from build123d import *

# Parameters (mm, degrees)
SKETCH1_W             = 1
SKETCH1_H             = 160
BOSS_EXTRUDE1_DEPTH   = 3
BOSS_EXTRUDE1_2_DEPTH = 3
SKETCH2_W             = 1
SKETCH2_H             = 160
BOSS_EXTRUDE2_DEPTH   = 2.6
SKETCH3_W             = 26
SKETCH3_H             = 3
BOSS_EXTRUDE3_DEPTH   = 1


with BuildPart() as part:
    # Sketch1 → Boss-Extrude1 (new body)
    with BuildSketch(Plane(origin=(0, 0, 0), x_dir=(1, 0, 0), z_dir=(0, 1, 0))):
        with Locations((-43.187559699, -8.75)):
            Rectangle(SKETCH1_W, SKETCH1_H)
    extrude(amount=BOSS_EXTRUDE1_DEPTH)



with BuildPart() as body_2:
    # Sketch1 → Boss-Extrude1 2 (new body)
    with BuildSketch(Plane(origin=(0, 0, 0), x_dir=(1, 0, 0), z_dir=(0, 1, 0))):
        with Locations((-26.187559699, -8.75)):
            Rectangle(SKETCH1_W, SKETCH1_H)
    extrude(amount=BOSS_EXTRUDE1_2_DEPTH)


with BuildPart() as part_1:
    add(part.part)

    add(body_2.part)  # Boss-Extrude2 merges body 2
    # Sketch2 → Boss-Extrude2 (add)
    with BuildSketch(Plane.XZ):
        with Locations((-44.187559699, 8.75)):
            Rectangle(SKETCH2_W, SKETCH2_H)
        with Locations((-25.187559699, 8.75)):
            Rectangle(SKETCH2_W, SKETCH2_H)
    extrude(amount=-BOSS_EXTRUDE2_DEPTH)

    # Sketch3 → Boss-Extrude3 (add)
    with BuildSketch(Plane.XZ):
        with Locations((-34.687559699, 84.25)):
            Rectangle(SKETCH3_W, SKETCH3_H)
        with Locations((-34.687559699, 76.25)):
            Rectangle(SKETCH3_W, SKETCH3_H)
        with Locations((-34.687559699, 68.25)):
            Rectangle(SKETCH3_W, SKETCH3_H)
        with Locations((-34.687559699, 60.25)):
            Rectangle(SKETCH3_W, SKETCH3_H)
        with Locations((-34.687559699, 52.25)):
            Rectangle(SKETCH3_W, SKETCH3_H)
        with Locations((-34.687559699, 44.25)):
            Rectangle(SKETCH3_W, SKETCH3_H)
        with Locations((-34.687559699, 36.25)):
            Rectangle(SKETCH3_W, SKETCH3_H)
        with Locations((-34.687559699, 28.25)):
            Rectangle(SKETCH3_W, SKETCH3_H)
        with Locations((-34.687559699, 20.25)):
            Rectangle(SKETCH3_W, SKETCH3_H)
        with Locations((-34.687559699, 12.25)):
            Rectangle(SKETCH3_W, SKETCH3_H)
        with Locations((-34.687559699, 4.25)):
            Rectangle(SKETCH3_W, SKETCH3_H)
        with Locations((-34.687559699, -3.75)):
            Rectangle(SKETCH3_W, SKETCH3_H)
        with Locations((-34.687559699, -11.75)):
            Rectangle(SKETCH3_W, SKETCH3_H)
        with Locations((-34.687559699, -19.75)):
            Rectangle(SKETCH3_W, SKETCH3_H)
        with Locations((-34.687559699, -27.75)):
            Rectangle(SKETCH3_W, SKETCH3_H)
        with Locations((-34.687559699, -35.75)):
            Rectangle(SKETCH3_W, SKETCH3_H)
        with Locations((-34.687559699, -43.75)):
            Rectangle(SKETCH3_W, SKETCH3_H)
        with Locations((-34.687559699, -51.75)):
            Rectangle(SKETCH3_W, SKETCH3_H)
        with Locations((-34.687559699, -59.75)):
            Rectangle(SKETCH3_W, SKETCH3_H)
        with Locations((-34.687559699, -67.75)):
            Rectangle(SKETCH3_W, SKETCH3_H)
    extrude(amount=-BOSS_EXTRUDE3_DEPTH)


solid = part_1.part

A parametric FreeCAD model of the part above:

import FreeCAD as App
import Part
import Sketcher

V = App.Vector
Q = App.Units.Quantity


def add_polygon(sketch, points):
    """Adds a closed chain of lines whose ends are joined by coincident constraints."""
    first, n = sketch.GeometryCount, len(points)
    for a, b in zip(points, points[1:] + points[:1]):
        sketch.addGeometry(Part.LineSegment(App.Vector(*a, 0), App.Vector(*b, 0)), False)
    for i in range(n):
        sketch.addConstraint(Sketcher.Constraint("Coincident", first + i, 2, first + (i + 1) % n, 1))

doc = App.newDocument("Part")
params = doc.addObject("Spreadsheet::Sheet", "Params")
for row, (alias, value) in enumerate([
    ("sketch1_width", "1 mm"),
    ("sketch1_height", "160 mm"),
    ("pad1_length", "3 mm"),
    ("sketch2_width", "1 mm"),
    ("sketch2_height", "160 mm"),
    ("pad2_length", "3 mm"),
    ("sketch3_width", "1 mm"),
    ("sketch3_height", "160 mm"),
    ("pad3_length", "2.6 mm"),
    ("sketch4_width", "26 mm"),
    ("sketch4_height", "3 mm"),
    ("pad4_length", "1 mm"),
], start=1):
    params.set(f"A{row}", alias)
    params.set(f"B{row}", "=" + value)
    params.setAlias(f"B{row}", alias)

body = doc.addObject("PartDesign::Body", "Body")

# Sketch on XZ plane
sketch1 = body.newObject("Sketcher::SketchObject", "Sketch")
sketch1.AttachmentSupport = (doc.getObject("XZ_Plane"), [""])
sketch1.MapMode = "FlatFace"
add_polygon(sketch1, [(-43.68756, -71.25), (-43.68756, 88.75), (-42.68756, 88.75), (-42.68756, -71.25)])  # lines 0-3
sketch1.addConstraint(Sketcher.Constraint("Vertical", 0))
sketch1.addConstraint(Sketcher.Constraint("Horizontal", 1))
sketch1.addConstraint(Sketcher.Constraint("Vertical", 2))
sketch1.addConstraint(Sketcher.Constraint("Horizontal", 3))
sketch1.addConstraint(Sketcher.Constraint("DistanceX", 1, 1, 1, 2, Q("1 mm")))
sketch1.addConstraint(Sketcher.Constraint("DistanceY", 0, 1, 0, 2, Q("160 mm")))
sketch1.addConstraint(Sketcher.Constraint("DistanceY", -1, 1, 0, 2, Q("88.75 mm")))
sketch1.addConstraint(Sketcher.Constraint("DistanceX", 0, 2, -1, 1, Q("43.68756 mm")))
sketch1.setExpression("Constraints[8]", "Params.sketch1_width")
sketch1.setExpression("Constraints[9]", "Params.sketch1_height")
pad1 = body.newObject("PartDesign::Pad", "Pad")
pad1.Profile = sketch1
pad1.setExpression("Length", "Params.pad1_length")
pad1.Reversed = True
body2 = doc.addObject("PartDesign::Body", "Body001")

# Sketch on XZ plane
sketch2 = body2.newObject("Sketcher::SketchObject", "Sketch001")
sketch2.AttachmentSupport = (doc.getObject("XZ_Plane001"), [""])
sketch2.MapMode = "FlatFace"
add_polygon(sketch2, [(-26.68756, -71.25), (-26.68756, 88.75), (-25.68756, 88.75), (-25.68756, -71.25)])  # lines 0-3
sketch2.addConstraint(Sketcher.Constraint("Vertical", 0))
sketch2.addConstraint(Sketcher.Constraint("Horizontal", 1))
sketch2.addConstraint(Sketcher.Constraint("Vertical", 2))
sketch2.addConstraint(Sketcher.Constraint("Horizontal", 3))
sketch2.addConstraint(Sketcher.Constraint("DistanceX", 1, 1, 1, 2, Q("1 mm")))
sketch2.addConstraint(Sketcher.Constraint("DistanceY", 0, 1, 0, 2, Q("160 mm")))
sketch2.addConstraint(Sketcher.Constraint("DistanceY", -1, 1, 0, 2, Q("88.75 mm")))
sketch2.addConstraint(Sketcher.Constraint("DistanceX", 0, 2, -1, 1, Q("26.68756 mm")))
sketch2.setExpression("Constraints[8]", "Params.sketch2_width")
sketch2.setExpression("Constraints[9]", "Params.sketch2_height")
pad2 = body2.newObject("PartDesign::Pad", "Pad001")
pad2.Profile = sketch2
pad2.setExpression("Length", "Params.pad2_length")
pad2.Reversed = True
body.AllowCompound = True
doc.recompute()

boolean = body.newObject("PartDesign::Boolean", "Boolean")
boolean.Type = "Fuse"
boolean.addObjects([body2])

# Sketch on XZ plane
sketch3 = body.newObject("Sketcher::SketchObject", "Sketch002")
sketch3.AttachmentSupport = (doc.getObject("XZ_Plane"), [""])
sketch3.MapMode = "FlatFace"
add_polygon(sketch3, [(-44.68756, 88.75), (-44.68756, -71.25), (-43.68756, -71.25), (-43.68756, 88.75)])  # lines 0-3
add_polygon(sketch3, [(-25.68756, 88.75), (-25.68756, -71.25), (-24.68756, -71.25), (-24.68756, 88.75)])  # lines 4-7
sketch3.addConstraint(Sketcher.Constraint("Vertical", 0))
sketch3.addConstraint(Sketcher.Constraint("Horizontal", 1))
sketch3.addConstraint(Sketcher.Constraint("Vertical", 2))
sketch3.addConstraint(Sketcher.Constraint("Horizontal", 3))
sketch3.addConstraint(Sketcher.Constraint("Vertical", 4))
sketch3.addConstraint(Sketcher.Constraint("Horizontal", 5))
sketch3.addConstraint(Sketcher.Constraint("Vertical", 6))
sketch3.addConstraint(Sketcher.Constraint("Horizontal", 7))
sketch3.addConstraint(Sketcher.Constraint("Horizontal", 1, 2, 4, 2))
sketch3.addConstraint(Sketcher.Constraint("Horizontal", 3, 2, 6, 2))
sketch3.addConstraint(Sketcher.Constraint("Equal", 3, 5))
sketch3.addConstraint(Sketcher.Constraint("DistanceX", 1, 1, 1, 2, Q("1 mm")))
sketch3.addConstraint(Sketcher.Constraint("DistanceY", 0, 2, 0, 1, Q("160 mm")))
sketch3.addConstraint(Sketcher.Constraint("DistanceX", 1, 2, 4, 2, Q("18 mm")))
sketch3.addConstraint(Sketcher.Constraint("DistanceY", 0, 2, -1, 1, Q("71.25 mm")))
sketch3.addConstraint(Sketcher.Constraint("DistanceX", 0, 2, -1, 1, Q("44.68756 mm")))
sketch3.setExpression("Constraints[19]", "Params.sketch3_width")
sketch3.setExpression("Constraints[20]", "Params.sketch3_height")
pad3 = body.newObject("PartDesign::Pad", "Pad002")
pad3.Profile = sketch3
pad3.setExpression("Length", "Params.pad3_length")
pad3.Reversed = True

# Sketch on XZ plane
sketch4 = body.newObject("Sketcher::SketchObject", "Sketch003")
sketch4.AttachmentSupport = (doc.getObject("XZ_Plane"), [""])
sketch4.MapMode = "FlatFace"
add_polygon(sketch4, [(-47.68756, 85.75), (-47.68756, 82.75), (-21.68756, 82.75), (-21.68756, 85.75)])  # lines 0-3
add_polygon(sketch4, [(-47.68756, 77.75), (-47.68756, 74.75), (-21.68756, 74.75), (-21.68756, 77.75)])  # lines 4-7
add_polygon(sketch4, [(-47.68756, 69.75), (-47.68756, 66.75), (-21.68756, 66.75), (-21.68756, 69.75)])  # lines 8-11
add_polygon(sketch4, [(-47.68756, 61.75), (-47.68756, 58.75), (-21.68756, 58.75), (-21.68756, 61.75)])  # lines 12-15
add_polygon(sketch4, [(-47.68756, 53.75), (-47.68756, 50.75), (-21.68756, 50.75), (-21.68756, 53.75)])  # lines 16-19
add_polygon(sketch4, [(-47.68756, 45.75), (-47.68756, 42.75), (-21.68756, 42.75), (-21.68756, 45.75)])  # lines 20-23
add_polygon(sketch4, [(-47.68756, 37.75), (-47.68756, 34.75), (-21.68756, 34.75), (-21.68756, 37.75)])  # lines 24-27
add_polygon(sketch4, [(-47.68756, 29.75), (-47.68756, 26.75), (-21.68756, 26.75), (-21.68756, 29.75)])  # lines 28-31
add_polygon(sketch4, [(-47.68756, 21.75), (-47.68756, 18.75), (-21.68756, 18.75), (-21.68756, 21.75)])  # lines 32-35
add_polygon(sketch4, [(-47.68756, 13.75), (-47.68756, 10.75), (-21.68756, 10.75), (-21.68756, 13.75)])  # lines 36-39
add_polygon(sketch4, [(-47.68756, 5.75), (-47.68756, 2.75), (-21.68756, 2.75), (-21.68756, 5.75)])  # lines 40-43
add_polygon(sketch4, [(-47.68756, -2.25), (-47.68756, -5.25), (-21.68756, -5.25), (-21.68756, -2.25)])  # lines 44-47
add_polygon(sketch4, [(-47.68756, -10.25), (-47.68756, -13.25), (-21.68756, -13.25), (-21.68756, -10.25)])  # lines 48-51
add_polygon(sketch4, [(-47.68756, -18.25), (-47.68756, -21.25), (-21.68756, -21.25), (-21.68756, -18.25)])  # lines 52-55
add_polygon(sketch4, [(-47.68756, -26.25), (-47.68756, -29.25), (-21.68756, -29.25), (-21.68756, -26.25)])  # lines 56-59
add_polygon(sketch4, [(-47.68756, -34.25), (-47.68756, -37.25), (-21.68756, -37.25), (-21.68756, -34.25)])  # lines 60-63
add_polygon(sketch4, [(-47.68756, -42.25), (-47.68756, -45.25), (-21.68756, -45.25), (-21.68756, -42.25)])  # lines 64-67
add_polygon(sketch4, [(-47.68756, -50.25), (-47.68756, -53.25), (-21.68756, -53.25), (-21.68756, -50.25)])  # lines 68-71
add_polygon(sketch4, [(-47.68756, -58.25), (-47.68756, -61.25), (-21.68756, -61.25), (-21.68756, -58.25)])  # lines 72-75
add_polygon(sketch4, [(-47.68756, -66.25), (-47.68756, -69.25), (-21.68756, -69.25), (-21.68756, -66.25)])  # lines 76-79
sketch4.addConstraint(Sketcher.Constraint("Vertical", 0))
sketch4.addConstraint(Sketcher.Constraint("Horizontal", 1))
sketch4.addConstraint(Sketcher.Constraint("Vertical", 2))
sketch4.addConstraint(Sketcher.Constraint("Horizontal", 3))
sketch4.addConstraint(Sketcher.Constraint("Vertical", 4))
sketch4.addConstraint(Sketcher.Constraint("Horizontal", 5))
sketch4.addConstraint(Sketcher.Constraint("Vertical", 6))
sketch4.addConstraint(Sketcher.Constraint("Horizontal", 7))
sketch4.addConstraint(Sketcher.Constraint("Vertical", 8))
sketch4.addConstraint(Sketcher.Constraint("Horizontal", 9))
sketch4.addConstraint(Sketcher.Constraint("Vertical", 10))
sketch4.addConstraint(Sketcher.Constraint("Horizontal", 11))
sketch4.addConstraint(Sketcher.Constraint("Vertical", 12))
sketch4.addConstraint(Sketcher.Constraint("Horizontal", 13))
sketch4.addConstraint(Sketcher.Constraint("Vertical", 14))
sketch4.addConstraint(Sketcher.Constraint("Horizontal", 15))
sketch4.addConstraint(Sketcher.Constraint("Vertical", 16))
sketch4.addConstraint(Sketcher.Constraint("Horizontal", 17))
sketch4.addConstraint(Sketcher.Constraint("Vertical", 18))
sketch4.addConstraint(Sketcher.Constraint("Horizontal", 19))
sketch4.addConstraint(Sketcher.Constraint("Vertical", 20))
sketch4.addConstraint(Sketcher.Constraint("Horizontal", 21))
sketch4.addConstraint(Sketcher.Constraint("Vertical", 22))
sketch4.addConstraint(Sketcher.Constraint("Horizontal", 23))
sketch4.addConstraint(Sketcher.Constraint("Vertical", 24))
sketch4.addConstraint(Sketcher.Constraint("Horizontal", 25))
sketch4.addConstraint(Sketcher.Constraint("Vertical", 26))
sketch4.addConstraint(Sketcher.Constraint("Horizontal", 27))
sketch4.addConstraint(Sketcher.Constraint("Vertical", 28))
sketch4.addConstraint(Sketcher.Constraint("Horizontal", 29))
sketch4.addConstraint(Sketcher.Constraint("Vertical", 30))
sketch4.addConstraint(Sketcher.Constraint("Horizontal", 31))
sketch4.addConstraint(Sketcher.Constraint("Vertical", 32))
sketch4.addConstraint(Sketcher.Constraint("Horizontal", 33))
sketch4.addConstraint(Sketcher.Constraint("Vertical", 34))
sketch4.addConstraint(Sketcher.Constraint("Horizontal", 35))
sketch4.addConstraint(Sketcher.Constraint("Vertical", 36))
sketch4.addConstraint(Sketcher.Constraint("Horizontal", 37))
sketch4.addConstraint(Sketcher.Constraint("Vertical", 38))
sketch4.addConstraint(Sketcher.Constraint("Horizontal", 39))
sketch4.addConstraint(Sketcher.Constraint("Vertical", 40))
sketch4.addConstraint(Sketcher.Constraint("Horizontal", 41))
sketch4.addConstraint(Sketcher.Constraint("Vertical", 42))
sketch4.addConstraint(Sketcher.Constraint("Horizontal", 43))
sketch4.addConstraint(Sketcher.Constraint("Vertical", 44))
sketch4.addConstraint(Sketcher.Constraint("Horizontal", 45))
sketch4.addConstraint(Sketcher.Constraint("Vertical", 46))
sketch4.addConstraint(Sketcher.Constraint("Horizontal", 47))
sketch4.addConstraint(Sketcher.Constraint("Vertical", 48))
sketch4.addConstraint(Sketcher.Constraint("Horizontal", 49))
sketch4.addConstraint(Sketcher.Constraint("Vertical", 50))
sketch4.addConstraint(Sketcher.Constraint("Horizontal", 51))
sketch4.addConstraint(Sketcher.Constraint("Vertical", 52))
sketch4.addConstraint(Sketcher.Constraint("Horizontal", 53))
sketch4.addConstraint(Sketcher.Constraint("Vertical", 54))
sketch4.addConstraint(Sketcher.Constraint("Horizontal", 55))
sketch4.addConstraint(Sketcher.Constraint("Vertical", 56))
sketch4.addConstraint(Sketcher.Constraint("Horizontal", 57))
sketch4.addConstraint(Sketcher.Constraint("Vertical", 58))
sketch4.addConstraint(Sketcher.Constraint("Horizontal", 59))
sketch4.addConstraint(Sketcher.Constraint("Vertical", 60))
sketch4.addConstraint(Sketcher.Constraint("Horizontal", 61))
sketch4.addConstraint(Sketcher.Constraint("Vertical", 62))
sketch4.addConstraint(Sketcher.Constraint("Horizontal", 63))
sketch4.addConstraint(Sketcher.Constraint("Vertical", 64))
sketch4.addConstraint(Sketcher.Constraint("Horizontal", 65))
sketch4.addConstraint(Sketcher.Constraint("Vertical", 66))
sketch4.addConstraint(Sketcher.Constraint("Horizontal", 67))
sketch4.addConstraint(Sketcher.Constraint("Vertical", 68))
sketch4.addConstraint(Sketcher.Constraint("Horizontal", 69))
sketch4.addConstraint(Sketcher.Constraint("Vertical", 70))
sketch4.addConstraint(Sketcher.Constraint("Horizontal", 71))
sketch4.addConstraint(Sketcher.Constraint("Vertical", 72))
sketch4.addConstraint(Sketcher.Constraint("Horizontal", 73))
sketch4.addConstraint(Sketcher.Constraint("Vertical", 74))
sketch4.addConstraint(Sketcher.Constraint("Horizontal", 75))
sketch4.addConstraint(Sketcher.Constraint("Vertical", 76))
sketch4.addConstraint(Sketcher.Constraint("Horizontal", 77))
sketch4.addConstraint(Sketcher.Constraint("Vertical", 78))
sketch4.addConstraint(Sketcher.Constraint("Horizontal", 79))
sketch4.addConstraint(Sketcher.Constraint("Vertical", 3, 2, 4, 2))
sketch4.addConstraint(Sketcher.Constraint("Vertical", 2, 2, 5, 2))
sketch4.addConstraint(Sketcher.Constraint("Vertical", 7, 2, 8, 2))
sketch4.addConstraint(Sketcher.Constraint("Vertical", 6, 2, 9, 2))
sketch4.addConstraint(Sketcher.Constraint("Vertical", 11, 2, 12, 2))
sketch4.addConstraint(Sketcher.Constraint("Vertical", 10, 2, 13, 2))
sketch4.addConstraint(Sketcher.Constraint("Vertical", 15, 2, 16, 2))
sketch4.addConstraint(Sketcher.Constraint("Vertical", 14, 2, 17, 2))
sketch4.addConstraint(Sketcher.Constraint("Vertical", 19, 2, 20, 2))
sketch4.addConstraint(Sketcher.Constraint("Vertical", 18, 2, 21, 2))
sketch4.addConstraint(Sketcher.Constraint("Vertical", 23, 2, 24, 2))
sketch4.addConstraint(Sketcher.Constraint("Vertical", 22, 2, 25, 2))
sketch4.addConstraint(Sketcher.Constraint("Vertical", 27, 2, 28, 2))
sketch4.addConstraint(Sketcher.Constraint("Vertical", 26, 2, 29, 2))
sketch4.addConstraint(Sketcher.Constraint("Vertical", 31, 2, 32, 2))
sketch4.addConstraint(Sketcher.Constraint("Vertical", 30, 2, 33, 2))
sketch4.addConstraint(Sketcher.Constraint("Vertical", 35, 2, 36, 2))
sketch4.addConstraint(Sketcher.Constraint("Vertical", 34, 2, 37, 2))
sketch4.addConstraint(Sketcher.Constraint("Vertical", 39, 2, 40, 2))
sketch4.addConstraint(Sketcher.Constraint("Vertical", 38, 2, 41, 2))
sketch4.addConstraint(Sketcher.Constraint("Vertical", 43, 2, 44, 2))
sketch4.addConstraint(Sketcher.Constraint("Vertical", 42, 2, 45, 2))
sketch4.addConstraint(Sketcher.Constraint("Vertical", 47, 2, 48, 2))
sketch4.addConstraint(Sketcher.Constraint("Vertical", 46, 2, 49, 2))
sketch4.addConstraint(Sketcher.Constraint("Vertical", 51, 2, 52, 2))
sketch4.addConstraint(Sketcher.Constraint("Vertical", 50, 2, 53, 2))
sketch4.addConstraint(Sketcher.Constraint("Vertical", 55, 2, 56, 2))
sketch4.addConstraint(Sketcher.Constraint("Vertical", 54, 2, 57, 2))
sketch4.addConstraint(Sketcher.Constraint("Vertical", 59, 2, 60, 2))
sketch4.addConstraint(Sketcher.Constraint("Vertical", 58, 2, 61, 2))
sketch4.addConstraint(Sketcher.Constraint("Vertical", 63, 2, 64, 2))
sketch4.addConstraint(Sketcher.Constraint("Vertical", 62, 2, 65, 2))
sketch4.addConstraint(Sketcher.Constraint("Vertical", 67, 2, 68, 2))
sketch4.addConstraint(Sketcher.Constraint("Vertical", 66, 2, 69, 2))
sketch4.addConstraint(Sketcher.Constraint("Vertical", 71, 2, 72, 2))
sketch4.addConstraint(Sketcher.Constraint("Vertical", 70, 2, 73, 2))
sketch4.addConstraint(Sketcher.Constraint("Vertical", 75, 2, 76, 2))
sketch4.addConstraint(Sketcher.Constraint("Vertical", 74, 2, 77, 2))
sketch4.addConstraint(Sketcher.Constraint("Equal", 2, 4))
sketch4.addConstraint(Sketcher.Constraint("Equal", 6, 8))
sketch4.addConstraint(Sketcher.Constraint("Equal", 10, 12))
sketch4.addConstraint(Sketcher.Constraint("Equal", 14, 16))
sketch4.addConstraint(Sketcher.Constraint("Equal", 18, 20))
sketch4.addConstraint(Sketcher.Constraint("Equal", 22, 24))
sketch4.addConstraint(Sketcher.Constraint("Equal", 26, 28))
sketch4.addConstraint(Sketcher.Constraint("Equal", 30, 32))
sketch4.addConstraint(Sketcher.Constraint("Equal", 34, 36))
sketch4.addConstraint(Sketcher.Constraint("Equal", 38, 40))
sketch4.addConstraint(Sketcher.Constraint("Equal", 42, 44))
sketch4.addConstraint(Sketcher.Constraint("Equal", 46, 48))
sketch4.addConstraint(Sketcher.Constraint("Equal", 50, 52))
sketch4.addConstraint(Sketcher.Constraint("Equal", 54, 56))
sketch4.addConstraint(Sketcher.Constraint("Equal", 58, 60))
sketch4.addConstraint(Sketcher.Constraint("Equal", 62, 64))
sketch4.addConstraint(Sketcher.Constraint("Equal", 66, 68))
sketch4.addConstraint(Sketcher.Constraint("Equal", 70, 72))
sketch4.addConstraint(Sketcher.Constraint("Equal", 74, 76))
sketch4.addConstraint(Sketcher.Constraint("DistanceX", 1, 1, 1, 2, Q("26 mm")))
sketch4.addConstraint(Sketcher.Constraint("DistanceY", 0, 2, 0, 1, Q("3 mm")))
sketch4.addConstraint(Sketcher.Constraint("DistanceY", -1, 1, 0, 2, Q("82.75 mm")))
sketch4.addConstraint(Sketcher.Constraint("DistanceY", -1, 1, 4, 2, Q("74.75 mm")))
sketch4.addConstraint(Sketcher.Constraint("DistanceY", -1, 1, 8, 2, Q("66.75 mm")))
sketch4.addConstraint(Sketcher.Constraint("DistanceY", -1, 1, 12, 2, Q("58.75 mm")))
sketch4.addConstraint(Sketcher.Constraint("DistanceY", -1, 1, 16, 2, Q("50.75 mm")))
sketch4.addConstraint(Sketcher.Constraint("DistanceY", -1, 1, 20, 2, Q("42.75 mm")))
sketch4.addConstraint(Sketcher.Constraint("DistanceY", -1, 1, 24, 2, Q("34.75 mm")))
sketch4.addConstraint(Sketcher.Constraint("DistanceY", -1, 1, 28, 2, Q("26.75 mm")))
sketch4.addConstraint(Sketcher.Constraint("DistanceY", -1, 1, 32, 2, Q("18.75 mm")))
sketch4.addConstraint(Sketcher.Constraint("DistanceY", -1, 1, 36, 2, Q("10.75 mm")))
sketch4.addConstraint(Sketcher.Constraint("DistanceY", -1, 1, 40, 2, Q("2.75 mm")))
sketch4.addConstraint(Sketcher.Constraint("DistanceY", 44, 2, -1, 1, Q("5.25 mm")))
sketch4.addConstraint(Sketcher.Constraint("DistanceY", 48, 2, -1, 1, Q("13.25 mm")))
sketch4.addConstraint(Sketcher.Constraint("DistanceY", 52, 2, -1, 1, Q("21.25 mm")))
sketch4.addConstraint(Sketcher.Constraint("DistanceY", 56, 2, -1, 1, Q("29.25 mm")))
sketch4.addConstraint(Sketcher.Constraint("DistanceY", 60, 2, -1, 1, Q("37.25 mm")))
sketch4.addConstraint(Sketcher.Constraint("DistanceY", 64, 2, -1, 1, Q("45.25 mm")))
sketch4.addConstraint(Sketcher.Constraint("DistanceY", 68, 2, -1, 1, Q("53.25 mm")))
sketch4.addConstraint(Sketcher.Constraint("DistanceY", 72, 2, -1, 1, Q("61.25 mm")))
sketch4.addConstraint(Sketcher.Constraint("DistanceY", 76, 2, -1, 1, Q("69.25 mm")))
sketch4.addConstraint(Sketcher.Constraint("DistanceX", 0, 2, -1, 1, Q("47.68756 mm")))
sketch4.setExpression("Constraints[217]", "Params.sketch4_width")
sketch4.setExpression("Constraints[218]", "Params.sketch4_height")
pad4 = body.newObject("PartDesign::Pad", "Pad003")
pad4.Profile = sketch4
pad4.setExpression("Length", "Params.pad4_length")
pad4.Reversed = True

doc.recompute()
